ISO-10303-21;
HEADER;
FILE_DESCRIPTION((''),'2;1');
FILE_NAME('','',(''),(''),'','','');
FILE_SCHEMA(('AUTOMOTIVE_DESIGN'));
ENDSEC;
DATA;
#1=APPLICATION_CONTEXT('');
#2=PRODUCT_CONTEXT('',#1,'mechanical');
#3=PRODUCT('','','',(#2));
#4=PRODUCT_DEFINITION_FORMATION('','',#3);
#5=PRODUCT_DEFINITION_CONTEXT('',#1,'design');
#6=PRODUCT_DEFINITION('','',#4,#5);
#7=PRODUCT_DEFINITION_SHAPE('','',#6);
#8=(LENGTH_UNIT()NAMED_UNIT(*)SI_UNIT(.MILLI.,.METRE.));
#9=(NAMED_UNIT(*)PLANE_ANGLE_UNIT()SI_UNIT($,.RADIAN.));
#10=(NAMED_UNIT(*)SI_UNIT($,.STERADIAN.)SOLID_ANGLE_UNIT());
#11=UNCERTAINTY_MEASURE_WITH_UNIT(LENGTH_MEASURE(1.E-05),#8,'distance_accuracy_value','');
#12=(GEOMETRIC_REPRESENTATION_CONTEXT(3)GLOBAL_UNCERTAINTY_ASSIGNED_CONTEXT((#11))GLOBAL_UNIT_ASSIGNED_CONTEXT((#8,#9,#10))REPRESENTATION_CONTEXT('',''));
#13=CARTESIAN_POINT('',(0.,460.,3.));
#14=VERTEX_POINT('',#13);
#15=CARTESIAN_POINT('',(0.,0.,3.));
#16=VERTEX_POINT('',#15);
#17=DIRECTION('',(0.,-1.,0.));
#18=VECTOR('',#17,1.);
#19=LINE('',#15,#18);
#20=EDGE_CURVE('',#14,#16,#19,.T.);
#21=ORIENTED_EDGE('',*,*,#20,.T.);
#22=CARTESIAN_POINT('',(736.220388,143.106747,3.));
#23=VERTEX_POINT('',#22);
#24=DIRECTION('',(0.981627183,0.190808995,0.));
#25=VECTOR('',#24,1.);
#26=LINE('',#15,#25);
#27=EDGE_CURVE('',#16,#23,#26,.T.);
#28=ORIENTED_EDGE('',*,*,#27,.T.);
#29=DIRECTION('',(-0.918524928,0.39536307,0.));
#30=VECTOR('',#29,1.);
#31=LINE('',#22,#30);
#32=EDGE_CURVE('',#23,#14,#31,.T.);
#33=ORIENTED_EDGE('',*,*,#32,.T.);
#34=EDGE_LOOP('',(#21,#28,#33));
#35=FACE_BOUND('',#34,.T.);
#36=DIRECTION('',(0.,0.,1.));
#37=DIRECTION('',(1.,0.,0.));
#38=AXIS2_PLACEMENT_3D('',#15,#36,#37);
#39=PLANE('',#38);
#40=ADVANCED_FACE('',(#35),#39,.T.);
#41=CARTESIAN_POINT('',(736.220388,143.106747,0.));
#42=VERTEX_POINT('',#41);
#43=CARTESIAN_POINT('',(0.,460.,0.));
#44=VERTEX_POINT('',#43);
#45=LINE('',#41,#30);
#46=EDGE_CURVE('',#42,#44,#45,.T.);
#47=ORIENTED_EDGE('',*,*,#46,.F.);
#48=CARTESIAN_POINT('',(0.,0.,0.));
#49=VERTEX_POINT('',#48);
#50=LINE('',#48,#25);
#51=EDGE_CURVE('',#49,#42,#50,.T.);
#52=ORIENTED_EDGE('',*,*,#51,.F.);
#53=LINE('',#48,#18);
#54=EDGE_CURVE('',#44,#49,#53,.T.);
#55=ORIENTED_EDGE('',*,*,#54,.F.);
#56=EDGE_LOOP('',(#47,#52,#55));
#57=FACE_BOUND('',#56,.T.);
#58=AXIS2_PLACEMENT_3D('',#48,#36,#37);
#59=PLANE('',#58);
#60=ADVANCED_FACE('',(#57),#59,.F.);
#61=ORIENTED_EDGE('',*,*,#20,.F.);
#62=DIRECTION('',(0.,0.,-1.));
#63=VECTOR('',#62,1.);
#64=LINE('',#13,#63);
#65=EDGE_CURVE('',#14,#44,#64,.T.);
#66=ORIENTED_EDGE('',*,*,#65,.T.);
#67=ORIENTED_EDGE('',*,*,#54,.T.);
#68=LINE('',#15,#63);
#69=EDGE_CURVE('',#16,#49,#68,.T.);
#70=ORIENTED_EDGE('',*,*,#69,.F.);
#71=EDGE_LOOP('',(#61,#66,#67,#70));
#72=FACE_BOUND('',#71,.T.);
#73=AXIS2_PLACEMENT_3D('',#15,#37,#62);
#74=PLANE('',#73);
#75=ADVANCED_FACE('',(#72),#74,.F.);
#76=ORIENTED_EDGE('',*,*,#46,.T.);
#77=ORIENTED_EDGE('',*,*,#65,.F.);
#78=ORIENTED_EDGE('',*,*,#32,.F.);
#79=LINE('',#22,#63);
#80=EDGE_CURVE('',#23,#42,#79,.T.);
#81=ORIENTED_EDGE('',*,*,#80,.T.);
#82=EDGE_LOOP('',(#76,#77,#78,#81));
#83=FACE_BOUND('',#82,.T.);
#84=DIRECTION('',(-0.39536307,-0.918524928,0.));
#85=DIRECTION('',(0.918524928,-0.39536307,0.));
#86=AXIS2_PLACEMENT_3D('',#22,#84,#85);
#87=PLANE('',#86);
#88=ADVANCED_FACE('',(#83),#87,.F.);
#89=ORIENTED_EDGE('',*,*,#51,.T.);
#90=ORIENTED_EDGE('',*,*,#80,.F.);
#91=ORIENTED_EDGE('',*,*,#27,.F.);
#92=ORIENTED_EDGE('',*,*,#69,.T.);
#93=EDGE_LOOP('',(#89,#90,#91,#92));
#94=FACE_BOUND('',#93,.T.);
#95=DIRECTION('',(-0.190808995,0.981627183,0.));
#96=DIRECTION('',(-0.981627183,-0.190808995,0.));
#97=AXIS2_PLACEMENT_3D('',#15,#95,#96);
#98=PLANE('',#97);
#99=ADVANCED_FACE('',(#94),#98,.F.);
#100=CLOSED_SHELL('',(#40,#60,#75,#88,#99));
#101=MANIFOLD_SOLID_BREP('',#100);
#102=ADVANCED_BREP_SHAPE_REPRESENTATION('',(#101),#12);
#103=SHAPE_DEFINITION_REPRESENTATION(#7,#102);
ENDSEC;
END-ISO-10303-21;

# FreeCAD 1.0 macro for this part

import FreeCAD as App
import Part
import Sketcher

V = App.Vector
Q = App.Units.Quantity

doc = App.newDocument("Part")
params = doc.addObject("Spreadsheet::Sheet", "Params")
for row, (alias, value) in enumerate([
    ("sketch1_height", "460 mm"),
    ("sketch1_length", "750 mm"),
    ("pad1_length", "3 mm"),
], start=1):
    params.set(f"A{row}", alias)
    params.set(f"B{row}", "=" + value)
    params.setAlias(f"B{row}", alias)

body = doc.addObject("PartDesign::Body", "Body")

# Sketch on XY plane
sketch1 = doc.addObject("Sketcher::SketchObject", "Sketch")
body.addObject(sketch1)
sketch1.AttachmentSupport = (doc.XY_Plane, [""])
sketch1.MapMode = "FlatFace"
sketch1.addGeometry(Part.LineSegment(V(0, 460, 0), V(0, 0, 0)), False)
sketch1.addGeometry(Part.LineSegment(V(0, 0, 0), V(736, 143, 0)), False)
sketch1.addGeometry(Part.LineSegment(V(736, 143, 0), V(0, 460, 0)), False)
sketch1.addConstraint(Sketcher.Constraint("Coincident", 0, 2, 1, 1))
sketch1.addConstraint(Sketcher.Constraint("Coincident", 1, 2, 2, 1))
sketch1.addConstraint(Sketcher.Constraint("Coincident", 2, 2, 0, 1))
sketch1.addConstraint(Sketcher.Constraint("Vertical", 0))
sketch1.addConstraint(Sketcher.Constraint("Coincident", 0, 2, -1, 1))
sketch1.addConstraint(Sketcher.Constraint("DistanceY", 0, 2, 0, 1, 460.0))
sketch1.addConstraint(Sketcher.Constraint("Angle", 1, Q("11 deg")))
sketch1.addConstraint(Sketcher.Constraint("Distance", 1, 750.0))
sketch1.setExpression("Constraints[5]", "Params.sketch1_height")
sketch1.setExpression("Constraints[7]", "Params.sketch1_length")
pad1 = doc.addObject("PartDesign::Pad", "Pad")
body.addObject(pad1)
pad1.Profile = sketch1
pad1.setExpression("Length", "Params.pad1_length")

doc.recompute()
